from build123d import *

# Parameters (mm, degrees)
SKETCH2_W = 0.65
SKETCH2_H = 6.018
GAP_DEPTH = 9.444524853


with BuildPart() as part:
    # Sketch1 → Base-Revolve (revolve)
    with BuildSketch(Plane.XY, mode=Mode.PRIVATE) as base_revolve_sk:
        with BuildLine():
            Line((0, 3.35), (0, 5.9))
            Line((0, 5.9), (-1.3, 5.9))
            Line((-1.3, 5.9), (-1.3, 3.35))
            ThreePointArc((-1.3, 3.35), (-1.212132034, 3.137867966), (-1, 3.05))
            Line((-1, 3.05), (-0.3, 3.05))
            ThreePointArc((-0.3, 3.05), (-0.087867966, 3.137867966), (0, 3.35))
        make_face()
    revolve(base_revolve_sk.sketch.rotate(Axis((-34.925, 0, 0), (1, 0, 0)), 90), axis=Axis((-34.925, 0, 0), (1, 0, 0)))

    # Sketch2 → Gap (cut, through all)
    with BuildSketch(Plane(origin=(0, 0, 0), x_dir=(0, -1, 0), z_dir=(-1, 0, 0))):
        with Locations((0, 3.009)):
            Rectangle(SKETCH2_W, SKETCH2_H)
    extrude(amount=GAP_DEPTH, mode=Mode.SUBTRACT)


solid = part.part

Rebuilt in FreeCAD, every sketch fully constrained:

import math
import FreeCAD as App
import Part
import Sketcher


def add_polygon(sketch, points):
    """Adds a closed chain of lines whose ends are joined by coincident constraints."""
    first, n = sketch.GeometryCount, len(points)
    for a, b in zip(points, points[1:] + points[:1]):
        sketch.addGeometry(Part.LineSegment(App.Vector(*a, 0), App.Vector(*b, 0)), False)
    for i in range(n):
        sketch.addConstraint(Sketcher.Constraint("Coincident", first + i, 2, first + (i + 1) % n, 1))

doc = App.newDocument("Part")
body = doc.addObject("PartDesign::Body", "Body")

# Sketch on XY plane
sketch1 = body.newObject("Sketcher::SketchObject", "Sketch")
sketch1.AttachmentSupport = (doc.getObject("XY_Plane"), [""])
sketch1.MapMode = "FlatFace"
sketch1.addGeometry([
    Part.LineSegment(App.Vector(0, 3.35, 0), App.Vector(0, 5.9, 0)),  # 0
    Part.LineSegment(App.Vector(0, 5.9, 0), App.Vector(-1.3, 5.9, 0)),  # 1
    Part.LineSegment(App.Vector(-1.3, 5.9, 0), App.Vector(-1.3, 3.35, 0)),  # 2
    Part.ArcOfCircle(Part.Circle(App.Vector(-1, 3.35, 0), App.Vector(0, 0, 1), 0.3), math.radians(-180), math.radians(-90)),  # 3
    Part.LineSegment(App.Vector(-1, 3.05, 0), App.Vector(-0.3, 3.05, 0)),  # 4
    Part.ArcOfCircle(Part.Circle(App.Vector(-0.3, 3.35, 0), App.Vector(0, 0, 1), 0.3), math.radians(-90), math.radians(0)),  # 5
], False)
sketch1.addConstraint([
    Sketcher.Constraint("Coincident", 0, 2, 1, 1),
    Sketcher.Constraint("Coincident", 1, 2, 2, 1),
    Sketcher.Constraint("Tangent", 2, 2, 3, 1),
    Sketcher.Constraint("Tangent", 3, 2, 4, 1),
    Sketcher.Constraint("Tangent", 4, 2, 5, 1),
    Sketcher.Constraint("Tangent", 5, 2, 0, 1),
    Sketcher.Constraint("Vertical", 0),
    Sketcher.Constraint("Horizontal", 1),
    Sketcher.Constraint("Vertical", 2),
    Sketcher.Constraint("Horizontal", 4),
    Sketcher.Constraint("Equal", 3, 5),
    Sketcher.Constraint("PointOnObject", 0, 2, -2),
    Sketcher.Constraint("Radius", 3, 0.3),
    Sketcher.Constraint("DistanceX", 1, 2, 1, 1, 1.3),
    Sketcher.Constraint("DistanceY", 0, 1, 0, 2, 2.55),
    Sketcher.Constraint("DistanceY", -1, 1, 0, 2, 5.9),
])
revolution = body.newObject("PartDesign::Revolution", "Revolution")
revolution.Profile = sketch1
revolution.ReferenceAxis = (sketch1, ["H_Axis"])
revolution.Angle = 360

# Sketch on YZ plane
sketch2 = body.newObject("Sketcher::SketchObject", "Sketch001")
sketch2.AttachmentSupport = (doc.getObject("YZ_Plane"), [""])
sketch2.MapMode = "FlatFace"
add_polygon(sketch2, [(0.3, 6), (0.3, 0), (-0.3, 0), (-0.3, 6)])  # lines 0-3
sketch2.addConstraint([
    Sketcher.Constraint("Vertical", 0),
    Sketcher.Constraint("Horizontal", 1),
    Sketcher.Constraint("Vertical", 2),
    Sketcher.Constraint("Horizontal", 3),
    Sketcher.Constraint("Symmetric", 0, 2, 1, 2, -1, 1),
    Sketcher.Constraint("DistanceX", 1, 2, 1, 1, 0.65),
    Sketcher.Constraint("DistanceY", 0, 2, 0, 1, 6.018),
])
pocket1 = body.newObject("PartDesign::Pocket", "Pocket")
pocket1.Profile = sketch2
pocket1.Type = "ThroughAll"

doc.recompute()
